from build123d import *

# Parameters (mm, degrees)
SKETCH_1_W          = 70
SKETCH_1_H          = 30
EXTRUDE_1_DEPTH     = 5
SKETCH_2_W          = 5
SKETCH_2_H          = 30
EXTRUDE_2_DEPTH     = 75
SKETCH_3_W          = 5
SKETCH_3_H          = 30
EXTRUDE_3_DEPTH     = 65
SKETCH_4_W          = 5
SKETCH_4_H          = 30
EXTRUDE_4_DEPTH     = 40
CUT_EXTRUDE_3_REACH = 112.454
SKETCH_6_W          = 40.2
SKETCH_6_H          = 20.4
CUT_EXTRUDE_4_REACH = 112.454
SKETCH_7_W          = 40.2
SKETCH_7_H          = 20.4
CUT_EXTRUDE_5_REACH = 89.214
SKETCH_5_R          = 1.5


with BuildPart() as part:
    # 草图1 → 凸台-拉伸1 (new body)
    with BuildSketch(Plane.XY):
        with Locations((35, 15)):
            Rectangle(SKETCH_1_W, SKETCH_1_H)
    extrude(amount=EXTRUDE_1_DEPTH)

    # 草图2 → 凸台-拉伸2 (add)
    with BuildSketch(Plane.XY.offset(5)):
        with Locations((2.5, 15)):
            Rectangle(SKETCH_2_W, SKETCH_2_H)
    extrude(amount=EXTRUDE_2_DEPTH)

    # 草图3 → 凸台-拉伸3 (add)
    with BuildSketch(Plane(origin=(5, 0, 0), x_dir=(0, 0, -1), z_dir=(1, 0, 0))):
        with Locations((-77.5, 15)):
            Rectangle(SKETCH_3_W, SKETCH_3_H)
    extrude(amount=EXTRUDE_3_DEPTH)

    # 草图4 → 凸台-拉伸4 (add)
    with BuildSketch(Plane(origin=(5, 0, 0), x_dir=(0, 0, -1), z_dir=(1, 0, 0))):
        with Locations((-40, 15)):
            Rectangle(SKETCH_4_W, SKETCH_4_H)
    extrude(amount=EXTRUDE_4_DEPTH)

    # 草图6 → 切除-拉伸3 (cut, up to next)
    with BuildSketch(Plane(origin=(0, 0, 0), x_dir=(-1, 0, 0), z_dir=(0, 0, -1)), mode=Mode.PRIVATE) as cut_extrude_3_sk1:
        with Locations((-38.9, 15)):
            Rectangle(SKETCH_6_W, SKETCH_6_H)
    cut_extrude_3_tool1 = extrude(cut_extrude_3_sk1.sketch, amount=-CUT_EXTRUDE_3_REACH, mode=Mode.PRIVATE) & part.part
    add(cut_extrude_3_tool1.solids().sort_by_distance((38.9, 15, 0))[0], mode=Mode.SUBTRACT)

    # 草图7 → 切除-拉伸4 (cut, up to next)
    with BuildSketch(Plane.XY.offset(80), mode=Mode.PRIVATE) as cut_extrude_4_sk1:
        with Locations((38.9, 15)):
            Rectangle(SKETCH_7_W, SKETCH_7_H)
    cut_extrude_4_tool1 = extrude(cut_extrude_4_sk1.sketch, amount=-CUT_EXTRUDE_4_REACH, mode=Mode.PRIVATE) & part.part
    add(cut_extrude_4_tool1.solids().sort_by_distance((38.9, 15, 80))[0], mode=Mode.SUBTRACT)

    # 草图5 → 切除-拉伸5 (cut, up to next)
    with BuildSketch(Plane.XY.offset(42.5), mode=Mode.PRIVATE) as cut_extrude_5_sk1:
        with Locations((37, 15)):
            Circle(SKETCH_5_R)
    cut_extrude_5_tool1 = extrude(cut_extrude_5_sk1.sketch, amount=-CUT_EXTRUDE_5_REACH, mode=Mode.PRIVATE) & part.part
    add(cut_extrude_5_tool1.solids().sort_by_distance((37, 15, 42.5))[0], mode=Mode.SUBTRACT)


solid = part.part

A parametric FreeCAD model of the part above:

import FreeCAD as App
import Part
import Sketcher
from FreeCAD import Vector


def add_polygon(sketch, points):
    """Adds a closed chain of lines whose ends are joined by coincident constraints."""
    first, n = sketch.GeometryCount, len(points)
    for a, b in zip(points, points[1:] + points[:1]):
        sketch.addGeometry(Part.LineSegment(App.Vector(*a, 0), App.Vector(*b, 0)), False)
    for i in range(n):
        sketch.addConstraint(Sketcher.Constraint("Coincident", first + i, 2, first + (i + 1) % n, 1))

doc = App.newDocument("Part")
body = doc.addObject("PartDesign::Body", "Body")

sketch1 = body.newObject("Sketcher::SketchObject", "Sketch")
sketch1.AttachmentSupport = (doc.getObject("XY_Plane"), [""])
sketch1.MapMode = "FlatFace"
add_polygon(sketch1, [(0, 30), (0, 0), (70, 0), (70, 30)])
sketch1.addConstraint([
    Sketcher.Constraint("Vertical", 0),
    Sketcher.Constraint("Horizontal", 1),
    Sketcher.Constraint("Vertical", 2),
    Sketcher.Constraint("Horizontal", 3),
    Sketcher.Constraint("Coincident", 0, 2, -1, 1),
    Sketcher.Constraint("DistanceX", 1, 1, 1, 2, 70.0),
    Sketcher.Constraint("DistanceY", 0, 2, 0, 1, 30.0),
])
pad1 = body.newObject("PartDesign::Pad", "Pad")
pad1.Profile = sketch1
pad1.Length = 5

sketch2 = body.newObject("Sketcher::SketchObject", "Sketch001")
sketch2.AttachmentSupport = (doc.getObject("XY_Plane"), [""])
sketch2.MapMode = "FlatFace"
sketch2.AttachmentOffset = App.Placement(Vector(0, 0, 5), App.Rotation())
add_polygon(sketch2, [(0, 30), (0, 0), (5, 0), (5, 30)])
sketch2.addConstraint([
    Sketcher.Constraint("Vertical", 0),
    Sketcher.Constraint("Horizontal", 1),
    Sketcher.Constraint("Vertical", 2),
    Sketcher.Constraint("Horizontal", 3),
    Sketcher.Constraint("Coincident", 0, 2, -1, 1),
    Sketcher.Constraint("DistanceX", 1, 1, 1, 2, 5.0),
    Sketcher.Constraint("DistanceY", 0, 2, 0, 1, 30.0),
])
pad2 = body.newObject("PartDesign::Pad", "Pad001")
pad2.Profile = sketch2
pad2.Length = 75

sketch3 = body.newObject("Sketcher::SketchObject", "Sketch002")
sketch3.AttachmentSupport = (doc.getObject("YZ_Plane"), [""])
sketch3.MapMode = "FlatFace"
sketch3.AttachmentOffset = App.Placement(Vector(0, 0, 5), App.Rotation())
add_polygon(sketch3, [(30, 80), (0, 80), (0, 75), (30, 75)])
sketch3.addConstraint([
    Sketcher.Constraint("Horizontal", 0),
    Sketcher.Constraint("Vertical", 1),
    Sketcher.Constraint("Horizontal", 2),
    Sketcher.Constraint("Vertical", 3),
    Sketcher.Constraint("PointOnObject", 0, 2, -2),
    Sketcher.Constraint("DistanceX", 0, 2, 0, 1, 30.0),
    Sketcher.Constraint("DistanceY", 1, 2, 1, 1, 5.0),
    Sketcher.Constraint("DistanceY", -1, 1, 0, 2, 80.0),
])
pad3 = body.newObject("PartDesign::Pad", "Pad002")
pad3.Profile = sketch3
pad3.Length = 65

sketch4 = body.newObject("Sketcher::SketchObject", "Sketch003")
sketch4.AttachmentSupport = (doc.getObject("YZ_Plane"), [""])
sketch4.MapMode = "FlatFace"
sketch4.AttachmentOffset = App.Placement(Vector(0, 0, 5), App.Rotation())
add_polygon(sketch4, [(30, 42.5), (0, 42.5), (0, 37.5), (30, 37.5)])
sketch4.addConstraint([
    Sketcher.Constraint("Horizontal", 0),
    Sketcher.Constraint("Vertical", 1),
    Sketcher.Constraint("Horizontal", 2),
    Sketcher.Constraint("Vertical", 3),
    Sketcher.Constraint("PointOnObject", 0, 2, -2),
    Sketcher.Constraint("DistanceX", 0, 2, 0, 1, 30.0),
    Sketcher.Constraint("DistanceY", 1, 2, 1, 1, 5.0),
    Sketcher.Constraint("DistanceY", -1, 1, 0, 2, 42.5),
])
pad4 = body.newObject("PartDesign::Pad", "Pad003")
pad4.Profile = sketch4
pad4.Length = 40

sketch5 = body.newObject("Sketcher::SketchObject", "Sketch004")
sketch5.AttachmentSupport = (doc.getObject("XY_Plane"), [""])
sketch5.MapMode = "FlatFace"
add_polygon(sketch5, [(59, 25.2), (59, 4.8), (18.8, 4.8), (18.8, 25.2)])
sketch5.addConstraint([
    Sketcher.Constraint("Vertical", 0),
    Sketcher.Constraint("Horizontal", 1),
    Sketcher.Constraint("Vertical", 2),
    Sketcher.Constraint("Horizontal", 3),
    Sketcher.Constraint("DistanceX", 1, 2, 1, 1, 40.2),
    Sketcher.Constraint("DistanceY", 0, 2, 0, 1, 20.4),
    Sketcher.Constraint("DistanceX", -1, 1, 0, 2, 59.0),
    Sketcher.Constraint("DistanceY", -1, 1, 0, 2, 4.8),
])
pocket1 = body.newObject("PartDesign::Pocket", "Pocket")
pocket1.Profile = sketch5
pocket1.Type = "UpToFirst"
pocket1.Reversed = True

sketch6 = body.newObject("Sketcher::SketchObject", "Sketch005")
sketch6.AttachmentSupport = (doc.getObject("XY_Plane"), [""])
sketch6.MapMode = "FlatFace"
sketch6.AttachmentOffset = App.Placement(Vector(0, 0, 80), App.Rotation())
add_polygon(sketch6, [(18.8, 25.2), (18.8, 4.8), (59, 4.8), (59, 25.2)])
sketch6.addConstraint([
    Sketcher.Constraint("Vertical", 0),
    Sketcher.Constraint("Horizontal", 1),
    Sketcher.Constraint("Vertical", 2),
    Sketcher.Constraint("Horizontal", 3),
    Sketcher.Constraint("DistanceX", 1, 1, 1, 2, 40.2),
    Sketcher.Constraint("DistanceY", 0, 2, 0, 1, 20.4),
    Sketcher.Constraint("DistanceX", -1, 1, 1, 2, 59.0),
    Sketcher.Constraint("DistanceY", -1, 1, 0, 2, 4.8),
])
pocket2 = body.newObject("PartDesign::Pocket", "Pocket001")
pocket2.Profile = sketch6
pocket2.Type = "UpToFirst"

sketch7 = body.newObject("Sketcher::SketchObject", "Sketch006")
sketch7.AttachmentSupport = (doc.getObject("XY_Plane"), [""])
sketch7.MapMode = "FlatFace"
sketch7.AttachmentOffset = App.Placement(Vector(0, 0, 42.5), App.Rotation())
sketch7.addGeometry(Part.Circle(Vector(37, 15, 0), Vector(0, 0, 1), 1.5), False)
sketch7.addConstraint([
    Sketcher.Constraint("Diameter", 0, 3.0),
    Sketcher.Constraint("DistanceX", -1, 1, 0, 3, 37.0),
    Sketcher.Constraint("DistanceY", -1, 1, 0, 3, 15.0),
])
pocket3 = body.newObject("PartDesign::Pocket", "Pocket002")
pocket3.Profile = sketch7
pocket3.Type = "UpToFirst"

doc.recompute()
